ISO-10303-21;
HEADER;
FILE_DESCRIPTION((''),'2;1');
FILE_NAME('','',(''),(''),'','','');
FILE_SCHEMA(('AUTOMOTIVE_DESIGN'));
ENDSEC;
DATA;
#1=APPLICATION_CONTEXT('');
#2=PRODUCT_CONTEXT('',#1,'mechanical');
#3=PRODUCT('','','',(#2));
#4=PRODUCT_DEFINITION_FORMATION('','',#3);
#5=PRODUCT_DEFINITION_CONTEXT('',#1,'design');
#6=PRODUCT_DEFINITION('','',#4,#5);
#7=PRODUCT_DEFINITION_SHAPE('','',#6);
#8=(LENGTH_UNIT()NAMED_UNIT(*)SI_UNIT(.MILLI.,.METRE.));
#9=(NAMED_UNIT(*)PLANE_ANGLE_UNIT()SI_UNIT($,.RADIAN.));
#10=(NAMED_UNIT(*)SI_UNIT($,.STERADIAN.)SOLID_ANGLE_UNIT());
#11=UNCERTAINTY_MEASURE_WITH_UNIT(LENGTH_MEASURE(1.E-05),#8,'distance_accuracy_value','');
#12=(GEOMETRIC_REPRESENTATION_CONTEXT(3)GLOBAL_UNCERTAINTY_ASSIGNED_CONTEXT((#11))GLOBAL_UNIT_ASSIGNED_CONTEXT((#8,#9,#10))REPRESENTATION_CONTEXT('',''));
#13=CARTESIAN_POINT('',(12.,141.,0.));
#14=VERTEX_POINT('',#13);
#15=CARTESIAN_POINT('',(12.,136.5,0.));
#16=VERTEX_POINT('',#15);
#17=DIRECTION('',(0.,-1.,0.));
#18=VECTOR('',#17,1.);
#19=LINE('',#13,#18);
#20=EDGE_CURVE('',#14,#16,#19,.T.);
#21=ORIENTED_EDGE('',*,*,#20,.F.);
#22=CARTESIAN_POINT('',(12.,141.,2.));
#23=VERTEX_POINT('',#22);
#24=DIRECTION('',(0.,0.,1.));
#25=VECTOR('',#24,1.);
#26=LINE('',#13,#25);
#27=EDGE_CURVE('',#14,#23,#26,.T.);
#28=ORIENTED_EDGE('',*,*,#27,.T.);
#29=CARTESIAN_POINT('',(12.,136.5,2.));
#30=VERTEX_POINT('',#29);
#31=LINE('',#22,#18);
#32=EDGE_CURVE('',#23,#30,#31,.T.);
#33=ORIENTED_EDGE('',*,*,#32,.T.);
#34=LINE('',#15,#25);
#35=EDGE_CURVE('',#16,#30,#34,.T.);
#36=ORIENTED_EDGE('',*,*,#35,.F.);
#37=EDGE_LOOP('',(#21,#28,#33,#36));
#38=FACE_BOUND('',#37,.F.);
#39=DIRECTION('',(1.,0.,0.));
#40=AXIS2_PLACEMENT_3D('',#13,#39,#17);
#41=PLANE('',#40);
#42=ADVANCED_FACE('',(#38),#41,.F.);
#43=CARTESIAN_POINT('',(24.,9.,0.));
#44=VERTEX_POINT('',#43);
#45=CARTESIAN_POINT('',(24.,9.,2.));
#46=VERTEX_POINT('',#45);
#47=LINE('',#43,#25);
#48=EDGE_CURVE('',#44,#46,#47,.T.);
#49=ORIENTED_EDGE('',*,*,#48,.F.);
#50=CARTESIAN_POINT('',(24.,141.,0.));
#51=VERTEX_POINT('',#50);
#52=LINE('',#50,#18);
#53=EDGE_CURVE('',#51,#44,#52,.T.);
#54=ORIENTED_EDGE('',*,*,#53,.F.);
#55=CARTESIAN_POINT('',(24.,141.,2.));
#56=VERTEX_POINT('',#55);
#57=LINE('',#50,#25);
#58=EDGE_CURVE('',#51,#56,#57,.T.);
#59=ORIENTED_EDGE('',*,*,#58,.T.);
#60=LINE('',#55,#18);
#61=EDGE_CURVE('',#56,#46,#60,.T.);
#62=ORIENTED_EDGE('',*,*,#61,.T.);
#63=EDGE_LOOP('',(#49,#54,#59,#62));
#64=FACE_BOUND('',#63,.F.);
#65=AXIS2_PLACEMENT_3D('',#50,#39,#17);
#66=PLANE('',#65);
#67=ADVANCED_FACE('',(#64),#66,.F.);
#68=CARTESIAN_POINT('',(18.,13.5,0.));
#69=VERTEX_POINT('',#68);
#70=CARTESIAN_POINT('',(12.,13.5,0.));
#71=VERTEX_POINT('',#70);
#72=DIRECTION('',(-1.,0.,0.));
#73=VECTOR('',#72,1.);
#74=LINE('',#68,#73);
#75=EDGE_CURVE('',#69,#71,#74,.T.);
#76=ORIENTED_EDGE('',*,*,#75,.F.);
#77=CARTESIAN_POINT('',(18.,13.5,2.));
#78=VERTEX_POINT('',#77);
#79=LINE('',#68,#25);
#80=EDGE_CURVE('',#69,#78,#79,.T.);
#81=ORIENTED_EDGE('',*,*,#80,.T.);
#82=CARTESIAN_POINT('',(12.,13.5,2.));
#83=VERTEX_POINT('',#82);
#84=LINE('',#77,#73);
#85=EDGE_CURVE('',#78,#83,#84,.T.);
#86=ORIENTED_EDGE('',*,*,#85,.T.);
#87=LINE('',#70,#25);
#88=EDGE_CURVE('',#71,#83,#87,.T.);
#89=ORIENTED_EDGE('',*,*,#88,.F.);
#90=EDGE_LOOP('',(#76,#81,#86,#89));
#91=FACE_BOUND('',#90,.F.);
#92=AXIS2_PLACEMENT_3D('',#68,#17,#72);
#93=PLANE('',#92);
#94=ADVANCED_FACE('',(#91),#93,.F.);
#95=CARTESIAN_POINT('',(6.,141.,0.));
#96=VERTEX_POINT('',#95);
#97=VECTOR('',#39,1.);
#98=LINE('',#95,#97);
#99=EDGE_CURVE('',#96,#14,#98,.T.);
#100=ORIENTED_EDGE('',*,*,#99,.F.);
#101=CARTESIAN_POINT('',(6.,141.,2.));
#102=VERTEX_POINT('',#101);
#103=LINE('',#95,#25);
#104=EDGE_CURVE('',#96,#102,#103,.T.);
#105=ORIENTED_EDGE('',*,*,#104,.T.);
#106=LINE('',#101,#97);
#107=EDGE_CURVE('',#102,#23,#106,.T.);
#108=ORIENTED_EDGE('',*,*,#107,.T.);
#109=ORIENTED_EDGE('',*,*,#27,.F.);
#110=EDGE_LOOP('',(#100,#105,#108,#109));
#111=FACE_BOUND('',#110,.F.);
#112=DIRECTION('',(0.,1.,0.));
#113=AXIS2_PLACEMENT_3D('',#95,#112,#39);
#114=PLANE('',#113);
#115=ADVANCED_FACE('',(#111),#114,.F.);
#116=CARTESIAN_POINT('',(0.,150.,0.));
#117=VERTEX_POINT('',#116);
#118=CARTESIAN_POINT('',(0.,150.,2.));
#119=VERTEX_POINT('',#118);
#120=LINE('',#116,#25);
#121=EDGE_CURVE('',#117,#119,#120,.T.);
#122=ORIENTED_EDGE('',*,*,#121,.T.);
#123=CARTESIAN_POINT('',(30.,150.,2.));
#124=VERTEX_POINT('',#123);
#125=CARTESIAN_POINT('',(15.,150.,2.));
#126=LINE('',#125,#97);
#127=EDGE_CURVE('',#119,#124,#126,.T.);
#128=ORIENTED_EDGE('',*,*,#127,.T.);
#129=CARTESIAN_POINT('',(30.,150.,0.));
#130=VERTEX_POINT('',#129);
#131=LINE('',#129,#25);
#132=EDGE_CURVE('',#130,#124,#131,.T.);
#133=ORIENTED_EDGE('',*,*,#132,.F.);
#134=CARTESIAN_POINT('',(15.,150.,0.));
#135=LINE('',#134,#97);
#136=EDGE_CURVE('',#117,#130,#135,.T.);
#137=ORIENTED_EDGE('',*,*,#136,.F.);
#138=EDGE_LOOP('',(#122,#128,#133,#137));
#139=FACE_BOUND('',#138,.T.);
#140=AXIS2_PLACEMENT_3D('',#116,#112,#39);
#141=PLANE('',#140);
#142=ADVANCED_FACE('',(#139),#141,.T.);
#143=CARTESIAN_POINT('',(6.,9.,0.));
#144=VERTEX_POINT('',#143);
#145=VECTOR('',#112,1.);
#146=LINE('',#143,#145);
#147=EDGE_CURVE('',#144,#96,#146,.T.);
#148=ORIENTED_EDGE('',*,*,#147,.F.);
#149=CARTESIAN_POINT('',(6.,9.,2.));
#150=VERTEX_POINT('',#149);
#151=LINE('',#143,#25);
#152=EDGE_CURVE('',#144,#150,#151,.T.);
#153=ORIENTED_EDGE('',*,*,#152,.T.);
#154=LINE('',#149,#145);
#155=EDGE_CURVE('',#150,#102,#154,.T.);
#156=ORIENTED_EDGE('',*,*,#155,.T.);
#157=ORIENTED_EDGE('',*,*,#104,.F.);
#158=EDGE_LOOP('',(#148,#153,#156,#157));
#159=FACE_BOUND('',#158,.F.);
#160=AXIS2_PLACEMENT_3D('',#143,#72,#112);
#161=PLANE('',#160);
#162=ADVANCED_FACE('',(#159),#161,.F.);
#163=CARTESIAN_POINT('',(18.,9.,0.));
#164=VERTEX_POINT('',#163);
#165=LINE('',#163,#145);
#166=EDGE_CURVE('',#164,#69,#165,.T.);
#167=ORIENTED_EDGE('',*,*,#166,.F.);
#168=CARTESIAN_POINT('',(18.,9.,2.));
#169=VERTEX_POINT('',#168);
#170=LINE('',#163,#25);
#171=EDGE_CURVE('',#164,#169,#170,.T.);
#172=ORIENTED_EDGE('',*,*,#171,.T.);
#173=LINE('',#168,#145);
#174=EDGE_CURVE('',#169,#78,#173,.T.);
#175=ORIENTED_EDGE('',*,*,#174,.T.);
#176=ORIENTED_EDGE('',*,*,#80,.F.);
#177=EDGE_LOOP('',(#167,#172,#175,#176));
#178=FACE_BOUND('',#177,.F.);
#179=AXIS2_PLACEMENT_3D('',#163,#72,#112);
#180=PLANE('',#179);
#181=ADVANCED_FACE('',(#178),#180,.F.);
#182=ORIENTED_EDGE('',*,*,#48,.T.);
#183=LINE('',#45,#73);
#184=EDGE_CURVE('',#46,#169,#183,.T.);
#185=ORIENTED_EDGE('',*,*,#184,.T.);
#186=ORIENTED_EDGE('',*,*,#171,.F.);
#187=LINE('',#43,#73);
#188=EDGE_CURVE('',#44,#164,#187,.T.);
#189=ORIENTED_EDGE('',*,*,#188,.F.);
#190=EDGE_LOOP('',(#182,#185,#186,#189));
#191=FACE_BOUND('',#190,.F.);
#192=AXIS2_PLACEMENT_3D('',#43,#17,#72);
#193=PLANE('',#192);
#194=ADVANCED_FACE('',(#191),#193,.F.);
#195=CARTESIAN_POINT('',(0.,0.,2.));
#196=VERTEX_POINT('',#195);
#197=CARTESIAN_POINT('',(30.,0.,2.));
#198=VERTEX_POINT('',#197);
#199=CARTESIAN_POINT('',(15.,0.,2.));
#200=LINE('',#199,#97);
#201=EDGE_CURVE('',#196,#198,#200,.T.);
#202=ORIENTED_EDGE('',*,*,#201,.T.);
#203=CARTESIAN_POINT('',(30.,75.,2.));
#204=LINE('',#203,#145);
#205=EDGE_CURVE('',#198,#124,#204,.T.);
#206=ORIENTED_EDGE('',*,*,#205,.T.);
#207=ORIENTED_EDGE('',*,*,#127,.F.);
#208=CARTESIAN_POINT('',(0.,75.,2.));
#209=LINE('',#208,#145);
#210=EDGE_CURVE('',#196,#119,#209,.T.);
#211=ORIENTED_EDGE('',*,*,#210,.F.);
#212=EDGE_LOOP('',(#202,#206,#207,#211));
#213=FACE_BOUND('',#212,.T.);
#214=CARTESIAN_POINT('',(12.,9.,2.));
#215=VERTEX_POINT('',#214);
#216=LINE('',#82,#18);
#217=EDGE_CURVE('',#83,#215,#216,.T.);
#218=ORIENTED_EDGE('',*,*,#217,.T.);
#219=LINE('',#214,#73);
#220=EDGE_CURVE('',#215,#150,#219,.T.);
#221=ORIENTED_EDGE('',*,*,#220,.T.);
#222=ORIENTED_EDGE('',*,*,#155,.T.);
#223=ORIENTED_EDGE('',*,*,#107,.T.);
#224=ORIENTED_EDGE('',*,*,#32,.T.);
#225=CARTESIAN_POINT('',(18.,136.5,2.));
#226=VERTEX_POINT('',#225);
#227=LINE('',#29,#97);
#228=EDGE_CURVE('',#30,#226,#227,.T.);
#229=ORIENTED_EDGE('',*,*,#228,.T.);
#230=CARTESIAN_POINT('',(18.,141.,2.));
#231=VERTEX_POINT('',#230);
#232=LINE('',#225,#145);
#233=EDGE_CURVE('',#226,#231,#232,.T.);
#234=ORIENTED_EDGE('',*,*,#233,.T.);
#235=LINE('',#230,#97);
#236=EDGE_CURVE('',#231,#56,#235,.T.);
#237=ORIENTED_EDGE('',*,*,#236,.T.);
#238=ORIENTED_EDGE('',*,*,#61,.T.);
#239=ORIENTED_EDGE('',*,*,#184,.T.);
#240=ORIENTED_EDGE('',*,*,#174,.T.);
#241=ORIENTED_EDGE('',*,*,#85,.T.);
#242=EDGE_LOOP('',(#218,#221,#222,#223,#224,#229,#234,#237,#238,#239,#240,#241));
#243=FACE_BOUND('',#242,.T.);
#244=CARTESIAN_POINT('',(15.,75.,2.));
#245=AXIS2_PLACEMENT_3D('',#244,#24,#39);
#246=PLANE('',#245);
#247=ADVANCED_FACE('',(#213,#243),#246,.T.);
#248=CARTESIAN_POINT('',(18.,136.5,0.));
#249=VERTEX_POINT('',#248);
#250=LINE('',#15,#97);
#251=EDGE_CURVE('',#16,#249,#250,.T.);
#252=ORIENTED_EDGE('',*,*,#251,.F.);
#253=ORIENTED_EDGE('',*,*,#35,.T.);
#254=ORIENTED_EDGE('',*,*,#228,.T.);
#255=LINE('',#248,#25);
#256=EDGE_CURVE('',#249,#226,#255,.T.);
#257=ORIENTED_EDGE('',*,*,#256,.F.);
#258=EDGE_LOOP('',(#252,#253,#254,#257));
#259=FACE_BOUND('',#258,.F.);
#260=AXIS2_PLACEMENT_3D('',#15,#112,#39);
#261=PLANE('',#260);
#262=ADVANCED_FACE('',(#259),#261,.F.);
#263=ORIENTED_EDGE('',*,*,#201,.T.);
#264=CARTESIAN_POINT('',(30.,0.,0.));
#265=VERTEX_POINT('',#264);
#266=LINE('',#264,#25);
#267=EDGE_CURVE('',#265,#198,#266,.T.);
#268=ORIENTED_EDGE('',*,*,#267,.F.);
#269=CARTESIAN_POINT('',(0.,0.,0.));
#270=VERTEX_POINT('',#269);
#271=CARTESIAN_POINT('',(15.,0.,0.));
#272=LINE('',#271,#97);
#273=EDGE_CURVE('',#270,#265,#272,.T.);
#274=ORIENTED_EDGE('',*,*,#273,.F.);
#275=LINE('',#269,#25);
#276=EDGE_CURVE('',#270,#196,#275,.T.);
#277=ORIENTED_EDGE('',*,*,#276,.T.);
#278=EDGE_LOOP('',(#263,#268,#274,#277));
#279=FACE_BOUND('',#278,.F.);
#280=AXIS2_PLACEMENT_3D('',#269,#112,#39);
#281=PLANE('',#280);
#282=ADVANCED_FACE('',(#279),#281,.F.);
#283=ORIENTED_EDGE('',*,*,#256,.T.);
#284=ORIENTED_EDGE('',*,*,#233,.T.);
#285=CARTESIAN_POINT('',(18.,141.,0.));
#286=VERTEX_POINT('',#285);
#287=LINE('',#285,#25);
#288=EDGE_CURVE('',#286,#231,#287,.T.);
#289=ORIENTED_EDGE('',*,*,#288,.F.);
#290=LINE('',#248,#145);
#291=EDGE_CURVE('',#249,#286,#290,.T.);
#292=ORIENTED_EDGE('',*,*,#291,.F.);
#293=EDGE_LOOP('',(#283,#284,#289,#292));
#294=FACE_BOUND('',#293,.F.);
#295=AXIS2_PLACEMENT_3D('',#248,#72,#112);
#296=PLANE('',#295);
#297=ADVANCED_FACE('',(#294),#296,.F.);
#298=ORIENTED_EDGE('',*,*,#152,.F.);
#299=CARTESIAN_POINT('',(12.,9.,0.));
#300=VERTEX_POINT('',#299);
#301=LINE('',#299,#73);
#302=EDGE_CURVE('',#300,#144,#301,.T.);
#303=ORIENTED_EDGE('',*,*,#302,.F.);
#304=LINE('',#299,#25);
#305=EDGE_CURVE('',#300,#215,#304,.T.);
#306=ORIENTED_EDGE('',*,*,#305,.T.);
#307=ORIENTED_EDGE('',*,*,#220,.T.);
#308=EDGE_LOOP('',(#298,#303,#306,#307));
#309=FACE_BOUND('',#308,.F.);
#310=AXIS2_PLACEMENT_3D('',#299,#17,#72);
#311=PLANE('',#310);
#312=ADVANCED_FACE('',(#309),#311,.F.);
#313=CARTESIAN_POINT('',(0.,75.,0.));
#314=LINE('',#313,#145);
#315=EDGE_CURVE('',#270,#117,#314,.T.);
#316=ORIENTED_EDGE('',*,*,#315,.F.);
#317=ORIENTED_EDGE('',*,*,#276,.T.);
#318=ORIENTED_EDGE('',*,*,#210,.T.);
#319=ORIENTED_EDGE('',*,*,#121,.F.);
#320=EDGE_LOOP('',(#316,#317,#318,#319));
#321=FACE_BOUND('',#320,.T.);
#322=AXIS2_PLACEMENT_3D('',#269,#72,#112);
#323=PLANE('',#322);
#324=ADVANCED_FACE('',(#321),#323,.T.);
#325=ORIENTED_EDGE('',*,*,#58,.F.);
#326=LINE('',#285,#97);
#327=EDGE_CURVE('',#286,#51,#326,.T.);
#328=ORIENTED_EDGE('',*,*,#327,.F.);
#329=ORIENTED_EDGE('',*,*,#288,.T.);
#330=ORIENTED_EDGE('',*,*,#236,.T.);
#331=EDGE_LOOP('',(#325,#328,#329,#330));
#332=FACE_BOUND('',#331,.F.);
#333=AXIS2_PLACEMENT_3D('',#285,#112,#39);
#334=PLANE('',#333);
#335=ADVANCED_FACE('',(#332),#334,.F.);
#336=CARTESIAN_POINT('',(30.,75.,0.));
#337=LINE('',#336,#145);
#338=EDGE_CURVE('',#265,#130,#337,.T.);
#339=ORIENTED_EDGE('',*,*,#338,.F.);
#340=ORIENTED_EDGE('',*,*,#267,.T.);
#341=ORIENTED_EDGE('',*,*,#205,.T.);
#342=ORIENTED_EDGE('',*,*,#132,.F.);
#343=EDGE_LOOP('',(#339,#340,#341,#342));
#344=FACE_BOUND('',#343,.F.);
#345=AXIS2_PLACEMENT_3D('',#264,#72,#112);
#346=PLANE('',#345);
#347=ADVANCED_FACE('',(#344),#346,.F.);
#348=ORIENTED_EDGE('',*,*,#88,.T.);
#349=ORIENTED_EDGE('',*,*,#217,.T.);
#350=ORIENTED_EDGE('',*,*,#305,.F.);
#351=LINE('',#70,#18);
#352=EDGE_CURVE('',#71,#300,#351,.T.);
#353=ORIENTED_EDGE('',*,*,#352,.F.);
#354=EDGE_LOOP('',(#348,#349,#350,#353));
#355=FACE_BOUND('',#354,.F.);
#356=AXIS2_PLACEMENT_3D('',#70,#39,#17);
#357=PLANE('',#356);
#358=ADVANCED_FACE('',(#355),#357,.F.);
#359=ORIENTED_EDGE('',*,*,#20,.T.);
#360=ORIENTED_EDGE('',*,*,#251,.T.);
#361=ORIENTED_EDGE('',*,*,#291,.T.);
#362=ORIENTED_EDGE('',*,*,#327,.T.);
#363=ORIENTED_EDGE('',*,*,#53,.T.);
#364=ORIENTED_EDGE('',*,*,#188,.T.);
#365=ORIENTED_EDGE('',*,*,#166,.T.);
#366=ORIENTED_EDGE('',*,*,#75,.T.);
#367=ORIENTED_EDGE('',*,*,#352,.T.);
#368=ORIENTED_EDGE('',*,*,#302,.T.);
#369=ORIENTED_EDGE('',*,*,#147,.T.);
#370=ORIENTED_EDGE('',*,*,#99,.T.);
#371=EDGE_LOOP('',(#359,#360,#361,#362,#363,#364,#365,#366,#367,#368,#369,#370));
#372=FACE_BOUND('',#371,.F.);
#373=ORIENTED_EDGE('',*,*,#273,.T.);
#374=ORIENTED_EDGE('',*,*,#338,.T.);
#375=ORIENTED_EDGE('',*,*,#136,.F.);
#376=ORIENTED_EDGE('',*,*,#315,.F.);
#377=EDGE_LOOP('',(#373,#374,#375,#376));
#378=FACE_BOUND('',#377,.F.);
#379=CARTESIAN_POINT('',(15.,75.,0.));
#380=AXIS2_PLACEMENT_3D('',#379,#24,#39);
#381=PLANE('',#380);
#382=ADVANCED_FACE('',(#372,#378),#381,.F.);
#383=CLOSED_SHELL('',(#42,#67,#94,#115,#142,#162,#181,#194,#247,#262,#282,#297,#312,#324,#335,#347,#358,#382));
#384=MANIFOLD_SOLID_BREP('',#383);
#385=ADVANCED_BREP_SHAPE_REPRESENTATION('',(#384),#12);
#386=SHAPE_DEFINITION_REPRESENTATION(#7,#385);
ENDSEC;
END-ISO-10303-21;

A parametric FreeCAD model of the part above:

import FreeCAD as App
import Part
import Sketcher

V = App.Vector
Q = App.Units.Quantity


def add_polygon(sketch, points):
    """Adds a closed chain of lines whose ends are joined by coincident constraints."""
    first, n = sketch.GeometryCount, len(points)
    for a, b in zip(points, points[1:] + points[:1]):
        sketch.addGeometry(Part.LineSegment(App.Vector(*a, 0), App.Vector(*b, 0)), False)
    for i in range(n):
        sketch.addConstraint(Sketcher.Constraint("Coincident", first + i, 2, first + (i + 1) % n, 1))

doc = App.newDocument("Part")
body = doc.addObject("PartDesign::Body", "Body")

# Sketch on XY plane
sketch1 = body.newObject("Sketcher::SketchObject", "Sketch")
sketch1.AttachmentSupport = (doc.getObject("XY_Plane"), [""])
sketch1.MapMode = "FlatFace"
add_polygon(sketch1, [(0, 150), (0, 0), (30, 0), (30, 150)])  # lines 0-3
add_polygon(sketch1, [(12, 9), (6, 9), (6, 141), (12, 141), (12, 136.5), (18, 136.5), (18, 141), (24, 141), (24, 9), (18, 9), (18, 13.5), (12, 13.5)])  # lines 4-15
sketch1.addConstraint(Sketcher.Constraint("Vertical", 0))
sketch1.addConstraint(Sketcher.Constraint("Horizontal", 1))
sketch1.addConstraint(Sketcher.Constraint("Vertical", 2))
sketch1.addConstraint(Sketcher.Constraint("Horizontal", 3))
sketch1.addConstraint(Sketcher.Constraint("Horizontal", 4))
sketch1.addConstraint(Sketcher.Constraint("Vertical", 5))
sketch1.addConstraint(Sketcher.Constraint("Horizontal", 6))
sketch1.addConstraint(Sketcher.Constraint("Vertical", 7))
sketch1.addConstraint(Sketcher.Constraint("Horizontal", 8))
sketch1.addConstraint(Sketcher.Constraint("Vertical", 9))
sketch1.addConstraint(Sketcher.Constraint("Horizontal", 10))
sketch1.addConstraint(Sketcher.Constraint("Vertical", 11))
sketch1.addConstraint(Sketcher.Constraint("Horizontal", 12))
sketch1.addConstraint(Sketcher.Constraint("Vertical", 13))
sketch1.addConstraint(Sketcher.Constraint("Horizontal", 14))
sketch1.addConstraint(Sketcher.Constraint("Vertical", 15))
sketch1.addConstraint(Sketcher.Constraint("Coincident", 0, 2, -1, 1))
sketch1.addConstraint(Sketcher.Constraint("Horizontal", 6, 2, 9, 2))
sketch1.addConstraint(Sketcher.Constraint("Horizontal", 4, 2, 11, 2))
sketch1.addConstraint(Sketcher.Constraint("Vertical", 9, 2, 12, 2))
sketch1.addConstraint(Sketcher.Constraint("Vertical", 7, 2, 14, 2))
sketch1.addConstraint(Sketcher.Constraint("Equal", 6, 8))
sketch1.addConstraint(Sketcher.Constraint("Equal", 8, 10))
sketch1.addConstraint(Sketcher.Constraint("Equal", 9, 13))
sketch1.addConstraint(Sketcher.Constraint("DistanceX", 1, 1, 1, 2, Q("30 mm")))
sketch1.addConstraint(Sketcher.Constraint("DistanceX", 4, 2, 4, 1, Q("6 mm")))
sketch1.addConstraint(Sketcher.Constraint("DistanceY", 0, 2, 0, 1, Q("150 mm")))
sketch1.addConstraint(Sketcher.Constraint("DistanceY", 5, 1, 5, 2, Q("132 mm")))
sketch1.addConstraint(Sketcher.Constraint("DistanceY", 7, 2, 7, 1, Q("4.5 mm")))
sketch1.addConstraint(Sketcher.Constraint("DistanceX", -1, 1, 4, 2, Q("6 mm")))
sketch1.addConstraint(Sketcher.Constraint("DistanceY", -1, 1, 4, 2, Q("9 mm")))
pad1 = body.newObject("PartDesign::Pad", "Pad")
pad1.Profile = sketch1
pad1.Length = 2

doc.recompute()
